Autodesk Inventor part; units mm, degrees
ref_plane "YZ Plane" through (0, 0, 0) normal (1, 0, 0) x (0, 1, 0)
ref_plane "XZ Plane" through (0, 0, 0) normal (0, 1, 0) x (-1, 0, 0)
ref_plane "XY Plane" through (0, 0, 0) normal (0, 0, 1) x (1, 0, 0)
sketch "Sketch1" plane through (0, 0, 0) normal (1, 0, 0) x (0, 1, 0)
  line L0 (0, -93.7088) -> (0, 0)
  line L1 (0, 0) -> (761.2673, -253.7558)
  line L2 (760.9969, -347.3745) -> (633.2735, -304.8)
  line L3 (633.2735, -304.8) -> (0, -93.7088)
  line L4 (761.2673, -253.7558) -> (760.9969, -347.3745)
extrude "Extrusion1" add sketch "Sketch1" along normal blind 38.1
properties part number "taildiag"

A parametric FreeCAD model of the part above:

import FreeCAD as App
import Part
import Sketcher
Q = App.Units.Quantity


def add_polygon(sketch, points):
    """Adds a closed chain of lines whose ends are joined by coincident constraints."""
    first, n = sketch.GeometryCount, len(points)
    for a, b in zip(points, points[1:] + points[:1]):
        sketch.addGeometry(Part.LineSegment(App.Vector(*a, 0), App.Vector(*b, 0)), False)
    for i in range(n):
        sketch.addConstraint(Sketcher.Constraint("Coincident", first + i, 2, first + (i + 1) % n, 1))

doc = App.newDocument("Part")
params = doc.addObject("Spreadsheet::Sheet", "Params")
for row, (alias, value) in enumerate([
    ("pad1_length", "1.5 in"),
], start=1):
    params.set(f"A{row}", alias)
    params.set(f"B{row}", "=" + value)
    params.setAlias(f"B{row}", alias)

body = doc.addObject("PartDesign::Body", "Body")

# Sketch on YZ plane
sketch1 = body.newObject("Sketcher::SketchObject", "Sketch")
sketch1.AttachmentSupport = (doc.getObject("YZ_Plane"), [""])
sketch1.MapMode = "FlatFace"
add_polygon(sketch1, [(0, 0), (0, -93.7088), (633.2735, -304.8), (760.9969, -347.3745), (761.2673, -253.7558)])  # lines 0-4
sketch1.addConstraint(Sketcher.Constraint("Vertical", 0))
sketch1.addConstraint(Sketcher.Constraint("Coincident", 4, 2, -1, 1))
sketch1.addConstraint(Sketcher.Constraint("Parallel", 1, 2))
sketch1.addConstraint(Sketcher.Constraint("Parallel", 2, 4))
sketch1.addConstraint(Sketcher.Constraint("DistanceY", 1, 2, -1, 1, Q("12 in")))
sketch1.addConstraint(Sketcher.Constraint("Distance", 3, Q("3.6858 in")))
sketch1.addConstraint(Sketcher.Constraint("DistanceY", 0, 2, 0, 1, Q("93.7088 mm")))
sketch1.addConstraint(Sketcher.Constraint("DistanceX", -1, 1, 2, 2, Q("29.9605 in")))
sketch1.addConstraint(Sketcher.Constraint("Distance", 1, Q("667.529 mm")))
pad1 = body.newObject("PartDesign::Pad", "Pad")
pad1.Profile = sketch1
pad1.setExpression("Length", "Params.pad1_length")

doc.recompute()
